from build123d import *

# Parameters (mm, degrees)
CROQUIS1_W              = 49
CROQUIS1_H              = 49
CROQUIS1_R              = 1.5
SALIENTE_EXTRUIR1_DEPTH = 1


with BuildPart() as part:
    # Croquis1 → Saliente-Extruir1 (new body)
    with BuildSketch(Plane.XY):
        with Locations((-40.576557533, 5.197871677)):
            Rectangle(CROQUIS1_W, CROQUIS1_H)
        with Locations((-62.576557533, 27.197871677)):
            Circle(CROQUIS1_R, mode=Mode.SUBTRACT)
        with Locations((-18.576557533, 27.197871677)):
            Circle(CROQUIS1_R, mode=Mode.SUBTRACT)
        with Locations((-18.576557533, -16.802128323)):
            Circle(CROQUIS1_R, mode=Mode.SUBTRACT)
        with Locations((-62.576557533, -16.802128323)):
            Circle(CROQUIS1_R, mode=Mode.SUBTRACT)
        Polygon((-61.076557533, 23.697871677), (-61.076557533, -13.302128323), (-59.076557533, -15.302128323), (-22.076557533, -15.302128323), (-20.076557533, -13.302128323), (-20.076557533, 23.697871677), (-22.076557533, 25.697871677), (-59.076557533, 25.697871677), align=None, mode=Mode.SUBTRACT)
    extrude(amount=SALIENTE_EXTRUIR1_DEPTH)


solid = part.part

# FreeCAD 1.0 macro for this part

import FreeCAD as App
import Part
import Sketcher

V = App.Vector
Q = App.Units.Quantity

doc = App.newDocument("Part")
body = doc.addObject("PartDesign::Body", "Body")

sketch1 = body.newObject("Sketcher::SketchObject", "Sketch")
sketch1.AttachmentSupport = (doc.getObject("XY_Plane"), [""])
sketch1.MapMode = "FlatFace"
sketch1.addGeometry([
    Part.LineSegment(V(-65.076558, 29.697872, 0), V(-65.076558, -19.302128, 0)),
    Part.LineSegment(V(-65.076558, -19.302128, 0), V(-16.076558, -19.302128, 0)),
    Part.LineSegment(V(-16.076558, -19.302128, 0), V(-16.076558, 29.697872, 0)),
    Part.LineSegment(V(-16.076558, 29.697872, 0), V(-65.076558, 29.697872, 0)),
    Part.Circle(V(-62.576558, -16.802128, 0), V(0, 0, 1), 1.5),
    Part.Circle(V(-18.576558, -16.802128, 0), V(0, 0, 1), 1.5),
    Part.Circle(V(-62.576558, 27.197872, 0), V(0, 0, 1), 1.5),
    Part.LineSegment(V(-61.076558, -13.302128, 0), V(-61.076558, 23.697872, 0)),
    Part.LineSegment(V(-61.076558, 23.697872, 0), V(-59.076558, 25.697872, 0)),
    Part.LineSegment(V(-59.076558, 25.697872, 0), V(-22.076558, 25.697872, 0)),
    Part.LineSegment(V(-22.076558, 25.697872, 0), V(-20.076558, 23.697872, 0)),
    Part.LineSegment(V(-20.076558, 23.697872, 0), V(-20.076558, -13.302128, 0)),
    Part.LineSegment(V(-20.076558, -13.302128, 0), V(-22.076558, -15.302128, 0)),
    Part.LineSegment(V(-22.076558, -15.302128, 0), V(-59.076558, -15.302128, 0)),
    Part.LineSegment(V(-59.076558, -15.302128, 0), V(-61.076558, -13.302128, 0)),
    Part.Circle(V(-18.576558, 27.197872, 0), V(0, 0, 1), 1.5),
], False)
sketch1.addConstraint([
    Sketcher.Constraint("Coincident", 0, 2, 1, 1),
    Sketcher.Constraint("Coincident", 1, 2, 2, 1),
    Sketcher.Constraint("Coincident", 2, 2, 3, 1),
    Sketcher.Constraint("Coincident", 3, 2, 0, 1),
    Sketcher.Constraint("Coincident", 7, 2, 8, 1),
    Sketcher.Constraint("Coincident", 8, 2, 9, 1),
    Sketcher.Constraint("Coincident", 9, 2, 10, 1),
    Sketcher.Constraint("Coincident", 10, 2, 11, 1),
    Sketcher.Constraint("Coincident", 11, 2, 12, 1),
    Sketcher.Constraint("Coincident", 12, 2, 13, 1),
    Sketcher.Constraint("Coincident", 13, 2, 14, 1),
    Sketcher.Constraint("Coincident", 14, 2, 7, 1),
    Sketcher.Constraint("Vertical", 0),
    Sketcher.Constraint("Horizontal", 1),
    Sketcher.Constraint("Vertical", 2),
    Sketcher.Constraint("Horizontal", 3),
    Sketcher.Constraint("Vertical", 7),
    Sketcher.Constraint("Horizontal", 9),
    Sketcher.Constraint("Vertical", 11),
    Sketcher.Constraint("Horizontal", 13),
    Sketcher.Constraint("Equal", 4, 5),
    Sketcher.Constraint("Equal", 5, 6),
    Sketcher.Constraint("Equal", 6, 15),
    Sketcher.Constraint("Perpendicular", 8, 10),
    Sketcher.Constraint("Perpendicular", 10, 12),
    Sketcher.Constraint("Perpendicular", 12, 14),
    Sketcher.Constraint("Horizontal", 4, 3, 5, 3),
    Sketcher.Constraint("Horizontal", 6, 3, 15, 3),
    Sketcher.Constraint("Horizontal", 7, 2, 10, 2),
    Sketcher.Constraint("Horizontal", 11, 2, 14, 2),
    Sketcher.Constraint("Vertical", 4, 3, 6, 3),
    Sketcher.Constraint("Vertical", 5, 3, 15, 3),
    Sketcher.Constraint("Vertical", 9, 2, 12, 2),
    Sketcher.Constraint("Vertical", 8, 2, 13, 2),
    Sketcher.Constraint("Equal", 3, 0),
    Sketcher.Constraint("Equal", 13, 7),
    Sketcher.Constraint("Diameter", 4, Q("3 mm")),
    Sketcher.Constraint("DistanceX", 1, 1, 1, 2, Q("49 mm")),
    Sketcher.Constraint("DistanceX", 9, 1, 9, 2, Q("37 mm")),
    Sketcher.Constraint("DistanceX", 4, 3, 5, 3, Q("44 mm")),
    Sketcher.Constraint("DistanceY", 4, 3, 6, 3, Q("44 mm")),
    Sketcher.Constraint("DistanceX", 3, 2, 7, 2, Q("4 mm")),
    Sketcher.Constraint("DistanceY", 7, 2, 3, 2, Q("6 mm")),
    Sketcher.Constraint("DistanceX", 7, 2, 8, 2, Q("2 mm")),
    Sketcher.Constraint("DistanceX", 0, 2, 4, 3, Q("2.5 mm")),
    Sketcher.Constraint("DistanceY", 0, 2, 4, 3, Q("2.5 mm")),
    Sketcher.Constraint("DistanceY", 4, 3, -1, 1, Q("16.802128 mm")),
    Sketcher.Constraint("DistanceX", 4, 3, -1, 1, Q("62.576558 mm")),
])
pad1 = body.newObject("PartDesign::Pad", "Pad")
pad1.Profile = sketch1
pad1.Length = 1

doc.recompute()
